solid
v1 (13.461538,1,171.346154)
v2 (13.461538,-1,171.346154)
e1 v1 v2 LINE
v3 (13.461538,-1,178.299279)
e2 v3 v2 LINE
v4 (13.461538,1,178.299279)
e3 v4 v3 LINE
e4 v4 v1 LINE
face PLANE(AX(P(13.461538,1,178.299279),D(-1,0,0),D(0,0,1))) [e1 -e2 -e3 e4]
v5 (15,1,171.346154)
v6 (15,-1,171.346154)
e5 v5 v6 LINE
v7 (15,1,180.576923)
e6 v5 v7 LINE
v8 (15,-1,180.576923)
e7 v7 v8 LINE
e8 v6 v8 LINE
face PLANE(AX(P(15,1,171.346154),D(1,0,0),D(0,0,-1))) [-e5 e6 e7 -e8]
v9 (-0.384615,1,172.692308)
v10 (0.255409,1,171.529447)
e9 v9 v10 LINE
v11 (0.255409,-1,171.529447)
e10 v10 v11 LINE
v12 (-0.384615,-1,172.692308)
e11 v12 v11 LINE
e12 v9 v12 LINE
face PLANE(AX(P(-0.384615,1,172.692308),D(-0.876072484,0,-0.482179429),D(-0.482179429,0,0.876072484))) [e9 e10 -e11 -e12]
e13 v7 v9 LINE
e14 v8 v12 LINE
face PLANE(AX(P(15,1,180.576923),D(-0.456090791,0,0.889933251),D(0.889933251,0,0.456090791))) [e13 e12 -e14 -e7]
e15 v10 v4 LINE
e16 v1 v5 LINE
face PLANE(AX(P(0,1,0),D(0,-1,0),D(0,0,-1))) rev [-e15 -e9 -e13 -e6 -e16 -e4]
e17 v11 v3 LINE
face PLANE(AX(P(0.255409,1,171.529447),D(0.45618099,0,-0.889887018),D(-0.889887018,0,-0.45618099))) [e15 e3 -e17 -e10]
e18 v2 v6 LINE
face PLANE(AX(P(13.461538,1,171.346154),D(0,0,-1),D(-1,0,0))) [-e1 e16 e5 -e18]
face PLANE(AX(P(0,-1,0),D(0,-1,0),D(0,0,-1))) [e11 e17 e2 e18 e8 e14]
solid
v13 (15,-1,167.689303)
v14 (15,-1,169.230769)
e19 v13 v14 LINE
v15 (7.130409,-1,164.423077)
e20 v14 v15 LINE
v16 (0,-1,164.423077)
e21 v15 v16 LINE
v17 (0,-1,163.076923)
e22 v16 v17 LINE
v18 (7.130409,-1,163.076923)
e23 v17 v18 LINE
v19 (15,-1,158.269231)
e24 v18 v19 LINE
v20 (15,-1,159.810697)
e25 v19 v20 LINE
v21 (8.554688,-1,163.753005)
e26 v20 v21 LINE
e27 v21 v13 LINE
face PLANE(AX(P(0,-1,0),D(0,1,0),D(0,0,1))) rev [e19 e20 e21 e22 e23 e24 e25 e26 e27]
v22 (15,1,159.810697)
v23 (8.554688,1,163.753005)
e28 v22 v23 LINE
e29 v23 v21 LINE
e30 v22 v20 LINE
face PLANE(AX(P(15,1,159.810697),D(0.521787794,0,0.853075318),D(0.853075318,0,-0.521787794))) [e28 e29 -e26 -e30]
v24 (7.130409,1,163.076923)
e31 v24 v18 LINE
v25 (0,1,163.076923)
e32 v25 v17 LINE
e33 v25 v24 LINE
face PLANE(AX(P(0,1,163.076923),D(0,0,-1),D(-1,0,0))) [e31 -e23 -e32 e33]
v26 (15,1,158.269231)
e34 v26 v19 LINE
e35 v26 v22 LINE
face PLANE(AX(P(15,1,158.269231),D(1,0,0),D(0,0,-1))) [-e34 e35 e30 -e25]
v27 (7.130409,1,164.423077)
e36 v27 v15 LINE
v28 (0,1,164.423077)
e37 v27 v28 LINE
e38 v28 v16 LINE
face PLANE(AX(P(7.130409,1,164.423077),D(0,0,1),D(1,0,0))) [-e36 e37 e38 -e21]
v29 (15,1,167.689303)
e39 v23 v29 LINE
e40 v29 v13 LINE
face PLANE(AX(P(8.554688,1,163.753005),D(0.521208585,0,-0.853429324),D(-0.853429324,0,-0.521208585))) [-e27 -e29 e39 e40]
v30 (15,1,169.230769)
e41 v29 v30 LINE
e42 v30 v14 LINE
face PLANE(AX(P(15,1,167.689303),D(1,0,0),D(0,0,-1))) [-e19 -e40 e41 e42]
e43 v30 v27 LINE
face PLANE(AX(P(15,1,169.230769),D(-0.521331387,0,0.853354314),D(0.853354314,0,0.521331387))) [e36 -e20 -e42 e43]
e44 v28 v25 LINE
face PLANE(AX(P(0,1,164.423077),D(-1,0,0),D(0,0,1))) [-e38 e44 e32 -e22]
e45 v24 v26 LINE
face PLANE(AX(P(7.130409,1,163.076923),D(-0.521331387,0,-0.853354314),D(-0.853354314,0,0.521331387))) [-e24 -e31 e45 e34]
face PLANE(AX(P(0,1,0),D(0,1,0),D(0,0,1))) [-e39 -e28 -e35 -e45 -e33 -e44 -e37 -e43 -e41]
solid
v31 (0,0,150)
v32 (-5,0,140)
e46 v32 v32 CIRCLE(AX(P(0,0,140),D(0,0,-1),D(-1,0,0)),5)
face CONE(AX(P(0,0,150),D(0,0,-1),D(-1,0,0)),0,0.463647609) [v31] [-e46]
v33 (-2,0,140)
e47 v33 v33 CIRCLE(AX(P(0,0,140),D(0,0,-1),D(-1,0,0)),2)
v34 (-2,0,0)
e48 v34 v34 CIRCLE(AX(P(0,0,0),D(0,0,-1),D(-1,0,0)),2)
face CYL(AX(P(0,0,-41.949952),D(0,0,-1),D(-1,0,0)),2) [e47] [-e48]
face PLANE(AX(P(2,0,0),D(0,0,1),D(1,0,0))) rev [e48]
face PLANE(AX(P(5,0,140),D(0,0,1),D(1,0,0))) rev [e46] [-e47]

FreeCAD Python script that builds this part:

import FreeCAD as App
import Part
import Sketcher
Q = App.Units.Quantity

doc = App.newDocument("Part")
params = doc.addObject("Spreadsheet::Sheet", "Params")
for row, (alias, value) in enumerate([
    ("sketch1_width", "3 mm"),
    ("sketch1_width2", "2 mm"),
    ("sketch1_height", "140 mm"),
    ("sketch1_height2", "150 mm"),
    ("revolution_angle", "360 deg"),
    ("pad1_length", "1 mm"),
    ("pad1_length2", "1 mm"),
    ("pad2_length", "1 mm"),
    ("pad2_length2", "1 mm"),
], start=1):
    params.set(f"A{row}", alias)
    params.set(f"B{row}", "=" + value)
    params.setAlias(f"B{row}", alias)

body = doc.addObject("PartDesign::Body", "Body")

# Sketch on XZ plane
sketch1 = body.newObject("Sketcher::SketchObject", "Sketch")
sketch1.AttachmentSupport = (doc.getObject("XZ_Plane"), [""])
sketch1.MapMode = "FlatFace"
sketch1.addGeometry([
    Part.LineSegment(App.Vector(0, 150, 0), App.Vector(5, 140, 0)),  # 0
    Part.LineSegment(App.Vector(5, 140, 0), App.Vector(2, 140, 0)),  # 1
    Part.LineSegment(App.Vector(2, 140, 0), App.Vector(2, 0, 0)),  # 2
    Part.LineSegment(App.Vector(2, 0, 0), App.Vector(0, 0, 0)),  # 3
    Part.LineSegment(App.Vector(0, 0, 0), App.Vector(0, 150, 0)),  # 4
], False)
sketch1.addConstraint([
    Sketcher.Constraint("Coincident", 0, 2, 1, 1),
    Sketcher.Constraint("Coincident", 1, 2, 2, 1),
    Sketcher.Constraint("Coincident", 2, 2, 3, 1),
    Sketcher.Constraint("Coincident", 3, 2, 4, 1),
    Sketcher.Constraint("Coincident", 4, 2, 0, 1),
    Sketcher.Constraint("Horizontal", 1),
    Sketcher.Constraint("Vertical", 2),
    Sketcher.Constraint("Horizontal", 3),
    Sketcher.Constraint("Vertical", 4),
    Sketcher.Constraint("Coincident", 3, 2, -1, 1),
    Sketcher.Constraint("DistanceX", 1, 2, 1, 1, Q("3 mm")),
    Sketcher.Constraint("DistanceX", 3, 2, 3, 1, Q("2 mm")),
    Sketcher.Constraint("DistanceY", 2, 2, 2, 1, Q("140 mm")),
    Sketcher.Constraint("DistanceY", 4, 1, 4, 2, Q("150 mm")),
])
sketch1.setExpression("Constraints[10]", "Params.sketch1_width")
sketch1.setExpression("Constraints[11]", "Params.sketch1_width2")
sketch1.setExpression("Constraints[12]", "Params.sketch1_height")
sketch1.setExpression("Constraints[13]", "Params.sketch1_height2")
revolution = body.newObject("PartDesign::Revolution", "Revolution")
revolution.Profile = sketch1
revolution.ReferenceAxis = (sketch1, ["V_Axis"])
revolution.setExpression("Angle", "Params.revolution_angle")
body2 = doc.addObject("PartDesign::Body", "Body001")

# Sketch on XZ plane
sketch2 = body2.newObject("Sketcher::SketchObject", "Sketch001")
sketch2.AttachmentSupport = (doc.getObject("XZ_Plane001"), [""])
sketch2.MapMode = "FlatFace"
sketch2.addGeometry([
    Part.LineSegment(App.Vector(15, 159.810697, 0), App.Vector(15, 158.269231, 0)),  # 0
    Part.LineSegment(App.Vector(15, 158.269231, 0), App.Vector(7.130409, 163.076923, 0)),  # 1
    Part.LineSegment(App.Vector(7.130409, 163.076923, 0), App.Vector(0, 163.076923, 0)),  # 2
    Part.LineSegment(App.Vector(0, 163.076923, 0), App.Vector(0, 164.423077, 0)),  # 3
    Part.LineSegment(App.Vector(0, 164.423077, 0), App.Vector(7.130409, 164.423077, 0)),  # 4
    Part.LineSegment(App.Vector(7.130409, 164.423077, 0), App.Vector(15, 169.230769, 0)),  # 5
    Part.LineSegment(App.Vector(15, 169.230769, 0), App.Vector(15, 167.689303, 0)),  # 6
    Part.LineSegment(App.Vector(15, 167.689303, 0), App.Vector(8.554688, 163.753005, 0)),  # 7
    Part.LineSegment(App.Vector(8.554688, 163.753005, 0), App.Vector(15, 159.810697, 0)),  # 8
], False)
sketch2.addConstraint([
    Sketcher.Constraint("Coincident", 0, 2, 1, 1),
    Sketcher.Constraint("Coincident", 1, 2, 2, 1),
    Sketcher.Constraint("Coincident", 2, 2, 3, 1),
    Sketcher.Constraint("Coincident", 3, 2, 4, 1),
    Sketcher.Constraint("Coincident", 4, 2, 5, 1),
    Sketcher.Constraint("Coincident", 5, 2, 6, 1),
    Sketcher.Constraint("Coincident", 6, 2, 7, 1),
    Sketcher.Constraint("Coincident", 7, 2, 8, 1),
    Sketcher.Constraint("Coincident", 8, 2, 0, 1),
    Sketcher.Constraint("Vertical", 0),
    Sketcher.Constraint("Horizontal", 2),
    Sketcher.Constraint("Vertical", 3),
    Sketcher.Constraint("Horizontal", 4),
    Sketcher.Constraint("Vertical", 6),
    Sketcher.Constraint("PointOnObject", 2, 2, -2),
    Sketcher.Constraint("Vertical", 1, 2, 4, 2),
    Sketcher.Constraint("Vertical", 0, 2, 5, 2),
    Sketcher.Constraint("Equal", 0, 6),
    Sketcher.Constraint("Equal", 1, 5),
    Sketcher.Constraint("DistanceX", -1, 1, 0, 2, Q("15 mm")),
    Sketcher.Constraint("DistanceX", 2, 2, 2, 1, Q("7.130409 mm")),
    Sketcher.Constraint("DistanceY", 7, 2, 6, 2, Q("3.936298 mm")),
    Sketcher.Constraint("Distance", 1, Q("9.221951 mm")),
    Sketcher.Constraint("Distance", 7, Q("7.552251 mm")),
    Sketcher.Constraint("DistanceY", 0, 2, 0, 1, Q("1.541466 mm")),
    Sketcher.Constraint("DistanceY", 3, 1, 3, 2, Q("1.346154 mm")),
    Sketcher.Constraint("DistanceY", -1, 1, 0, 2, Q("158.269231 mm")),
])
pad1 = body2.newObject("PartDesign::Pad", "Pad")
pad1.Profile = sketch2
pad1.Type = "TwoLengths"
pad1.setExpression("Length", "Params.pad1_length")
pad1.setExpression("Length2", "Params.pad1_length2")
pad1.Reversed = True
body3 = doc.addObject("PartDesign::Body", "Body002")

# Sketch on XZ plane
sketch3 = body3.newObject("Sketcher::SketchObject", "Sketch002")
sketch3.AttachmentSupport = (doc.getObject("XZ_Plane002"), [""])
sketch3.MapMode = "FlatFace"
sketch3.addGeometry([
    Part.LineSegment(App.Vector(15, 180.576923, 0), App.Vector(15, 171.346154, 0)),  # 0
    Part.LineSegment(App.Vector(15, 171.346154, 0), App.Vector(13.461538, 171.346154, 0)),  # 1
    Part.LineSegment(App.Vector(13.461538, 171.346154, 0), App.Vector(13.461538, 178.299279, 0)),  # 2
    Part.LineSegment(App.Vector(13.461538, 178.299279, 0), App.Vector(0.255409, 171.529447, 0)),  # 3
    Part.LineSegment(App.Vector(0.255409, 171.529447, 0), App.Vector(-0.384615, 172.692308, 0)),  # 4
    Part.LineSegment(App.Vector(-0.384615, 172.692308, 0), App.Vector(15, 180.576923, 0)),  # 5
], False)
sketch3.addConstraint([
    Sketcher.Constraint("Coincident", 0, 2, 1, 1),
    Sketcher.Constraint("Coincident", 1, 2, 2, 1),
    Sketcher.Constraint("Coincident", 2, 2, 3, 1),
    Sketcher.Constraint("Coincident", 3, 2, 4, 1),
    Sketcher.Constraint("Coincident", 4, 2, 5, 1),
    Sketcher.Constraint("Coincident", 5, 2, 0, 1),
    Sketcher.Constraint("Vertical", 0),
    Sketcher.Constraint("Horizontal", 1),
    Sketcher.Constraint("Vertical", 2),
    Sketcher.Constraint("DistanceX", -1, 1, 0, 2, Q("15 mm")),
    Sketcher.Constraint("DistanceX", 1, 2, 1, 1, Q("1.538462 mm")),
    Sketcher.Constraint("DistanceY", 0, 2, 0, 1, Q("9.230769 mm")),
    Sketcher.Constraint("Distance", 5, Q("17.287381 mm")),
    Sketcher.Constraint("DistanceY", 2, 1, 2, 2, Q("6.953125 mm")),
    Sketcher.Constraint("DistanceY", -1, 1, 2, 2, Q("178.299279 mm")),
    Sketcher.Constraint("DistanceX", -1, 1, 3, 2, Q("0.255409 mm")),
    Sketcher.Constraint("DistanceY", 3, 2, 2, 2, Q("6.769832 mm")),
    Sketcher.Constraint("DistanceY", 3, 2, 4, 2, Q("1.162861 mm")),
])
pad2 = body3.newObject("PartDesign::Pad", "Pad001")
pad2.Profile = sketch3
pad2.Type = "TwoLengths"
pad2.setExpression("Length", "Params.pad2_length")
pad2.setExpression("Length2", "Params.pad2_length2")
pad2.Reversed = True

doc.recompute()
